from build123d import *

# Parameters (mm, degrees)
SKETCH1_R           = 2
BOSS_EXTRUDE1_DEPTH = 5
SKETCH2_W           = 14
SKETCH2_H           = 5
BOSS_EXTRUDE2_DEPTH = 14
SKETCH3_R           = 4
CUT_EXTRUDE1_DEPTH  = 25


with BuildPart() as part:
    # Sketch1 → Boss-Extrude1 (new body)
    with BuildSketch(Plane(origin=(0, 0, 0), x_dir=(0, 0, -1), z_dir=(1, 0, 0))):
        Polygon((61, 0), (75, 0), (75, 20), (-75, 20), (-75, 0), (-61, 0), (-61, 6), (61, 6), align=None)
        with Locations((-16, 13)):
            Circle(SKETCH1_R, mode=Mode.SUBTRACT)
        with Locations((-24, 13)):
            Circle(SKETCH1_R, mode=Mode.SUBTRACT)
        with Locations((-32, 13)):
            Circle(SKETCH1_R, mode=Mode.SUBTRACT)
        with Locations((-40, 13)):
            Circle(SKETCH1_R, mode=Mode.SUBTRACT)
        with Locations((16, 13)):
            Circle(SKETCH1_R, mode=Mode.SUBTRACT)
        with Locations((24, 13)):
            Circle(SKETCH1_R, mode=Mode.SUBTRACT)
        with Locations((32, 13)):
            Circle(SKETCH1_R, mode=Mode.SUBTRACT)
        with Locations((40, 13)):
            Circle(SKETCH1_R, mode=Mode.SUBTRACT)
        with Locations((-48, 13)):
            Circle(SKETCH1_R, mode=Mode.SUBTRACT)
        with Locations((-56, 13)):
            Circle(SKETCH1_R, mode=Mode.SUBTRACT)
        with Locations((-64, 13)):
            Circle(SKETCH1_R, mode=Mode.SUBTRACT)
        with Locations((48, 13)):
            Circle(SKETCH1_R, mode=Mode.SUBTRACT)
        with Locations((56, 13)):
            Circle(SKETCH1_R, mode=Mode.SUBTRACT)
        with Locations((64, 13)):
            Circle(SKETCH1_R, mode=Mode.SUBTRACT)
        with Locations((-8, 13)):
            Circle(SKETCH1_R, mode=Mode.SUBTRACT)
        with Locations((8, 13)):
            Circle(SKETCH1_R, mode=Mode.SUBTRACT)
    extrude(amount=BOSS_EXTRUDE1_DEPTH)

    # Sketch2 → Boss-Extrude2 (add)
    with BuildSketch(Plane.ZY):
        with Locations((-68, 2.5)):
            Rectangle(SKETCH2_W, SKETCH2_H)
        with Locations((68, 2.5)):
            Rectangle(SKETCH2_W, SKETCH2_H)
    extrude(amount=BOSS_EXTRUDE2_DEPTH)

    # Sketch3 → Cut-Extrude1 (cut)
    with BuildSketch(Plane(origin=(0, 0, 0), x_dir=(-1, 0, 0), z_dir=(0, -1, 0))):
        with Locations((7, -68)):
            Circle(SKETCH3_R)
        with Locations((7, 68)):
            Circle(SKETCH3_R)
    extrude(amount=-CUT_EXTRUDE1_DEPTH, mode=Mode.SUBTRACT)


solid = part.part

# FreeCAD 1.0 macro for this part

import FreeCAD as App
import Part
import Sketcher
Q = App.Units.Quantity


def add_polygon(sketch, points):
    """Adds a closed chain of lines whose ends are joined by coincident constraints."""
    first, n = sketch.GeometryCount, len(points)
    for a, b in zip(points, points[1:] + points[:1]):
        sketch.addGeometry(Part.LineSegment(App.Vector(*a, 0), App.Vector(*b, 0)), False)
    for i in range(n):
        sketch.addConstraint(Sketcher.Constraint("Coincident", first + i, 2, first + (i + 1) % n, 1))

doc = App.newDocument("Part")
body = doc.addObject("PartDesign::Body", "Body")

sketch1 = body.newObject("Sketcher::SketchObject", "Sketch")
sketch1.AttachmentSupport = (doc.getObject("YZ_Plane"), [""])
sketch1.MapMode = "FlatFace"
add_polygon(sketch1, [(0, -61), (0, -75), (20, -75), (20, 75), (0, 75), (0, 61), (6, 61), (6, -61)])
sketch1.addGeometry(Part.Circle(App.Vector(13, 64, 0), App.Vector(0, 0, 1), 2), False)
sketch1.addGeometry(Part.Circle(App.Vector(13, 56, 0), App.Vector(0, 0, 1), 2), False)
sketch1.addGeometry(Part.Circle(App.Vector(13, 48, 0), App.Vector(0, 0, 1), 2), False)
sketch1.addGeometry(Part.Circle(App.Vector(13, 40, 0), App.Vector(0, 0, 1), 2), False)
sketch1.addGeometry(Part.Circle(App.Vector(13, 32, 0), App.Vector(0, 0, 1), 2), False)
sketch1.addGeometry(Part.Circle(App.Vector(13, 24, 0), App.Vector(0, 0, 1), 2), False)
sketch1.addGeometry(Part.Circle(App.Vector(13, 16, 0), App.Vector(0, 0, 1), 2), False)
sketch1.addGeometry(Part.Circle(App.Vector(13, 8, 0), App.Vector(0, 0, 1), 2), False)
sketch1.addGeometry(Part.Circle(App.Vector(13, -8, 0), App.Vector(0, 0, 1), 2), False)
sketch1.addGeometry(Part.Circle(App.Vector(13, -16, 0), App.Vector(0, 0, 1), 2), False)
sketch1.addGeometry(Part.Circle(App.Vector(13, -24, 0), App.Vector(0, 0, 1), 2), False)
sketch1.addGeometry(Part.Circle(App.Vector(13, -32, 0), App.Vector(0, 0, 1), 2), False)
sketch1.addGeometry(Part.Circle(App.Vector(13, -40, 0), App.Vector(0, 0, 1), 2), False)
sketch1.addGeometry(Part.Circle(App.Vector(13, -48, 0), App.Vector(0, 0, 1), 2), False)
sketch1.addGeometry(Part.Circle(App.Vector(13, -56, 0), App.Vector(0, 0, 1), 2), False)
sketch1.addGeometry(Part.Circle(App.Vector(13, -64, 0), App.Vector(0, 0, 1), 2), False)
sketch1.addConstraint([
    Sketcher.Constraint("Vertical", 0),
    Sketcher.Constraint("Horizontal", 1),
    Sketcher.Constraint("Vertical", 2),
    Sketcher.Constraint("Horizontal", 3),
    Sketcher.Constraint("Vertical", 4),
    Sketcher.Constraint("Horizontal", 5),
    Sketcher.Constraint("Vertical", 6),
    Sketcher.Constraint("Horizontal", 7),
    Sketcher.Constraint("Equal", 8, 9),
    Sketcher.Constraint("Equal", 9, 10),
    Sketcher.Constraint("Equal", 10, 11),
    Sketcher.Constraint("Equal", 11, 12),
    Sketcher.Constraint("Equal", 12, 13),
    Sketcher.Constraint("Equal", 13, 14),
    Sketcher.Constraint("Equal", 14, 15),
    Sketcher.Constraint("Equal", 15, 16),
    Sketcher.Constraint("Equal", 16, 17),
    Sketcher.Constraint("Equal", 17, 18),
    Sketcher.Constraint("Equal", 18, 19),
    Sketcher.Constraint("Equal", 19, 20),
    Sketcher.Constraint("Equal", 20, 21),
    Sketcher.Constraint("Equal", 21, 22),
    Sketcher.Constraint("Equal", 22, 23),
    Sketcher.Constraint("Symmetric", 0, 2, 3, 2, -1, 1),
    Sketcher.Constraint("Symmetric", 15, 3, 16, 3, -1),
    Sketcher.Constraint("Symmetric", 14, 3, 17, 3, -1),
    Sketcher.Constraint("Symmetric", 13, 3, 18, 3, -1),
    Sketcher.Constraint("Symmetric", 12, 3, 19, 3, -1),
    Sketcher.Constraint("Symmetric", 11, 3, 20, 3, -1),
    Sketcher.Constraint("Symmetric", 10, 3, 21, 3, -1),
    Sketcher.Constraint("Symmetric", 9, 3, 22, 3, -1),
    Sketcher.Constraint("Symmetric", 8, 3, 23, 3, -1),
    Sketcher.Constraint("Symmetric", 4, 2, 7, 2, -1),
    Sketcher.Constraint("Vertical", 8, 3, 9, 3),
    Sketcher.Constraint("Vertical", 9, 3, 10, 3),
    Sketcher.Constraint("Vertical", 10, 3, 11, 3),
    Sketcher.Constraint("Vertical", 11, 3, 12, 3),
    Sketcher.Constraint("Vertical", 12, 3, 13, 3),
    Sketcher.Constraint("Vertical", 13, 3, 14, 3),
    Sketcher.Constraint("Vertical", 14, 3, 15, 3),
    Sketcher.Constraint("Diameter", 8, Q("4 mm")),
    Sketcher.Constraint("DistanceX", 1, 1, 1, 2, Q("20 mm")),
    Sketcher.Constraint("DistanceX", 5, 1, 5, 2, Q("6 mm")),
    Sketcher.Constraint("DistanceY", 0, 2, 0, 1, Q("14 mm")),
    Sketcher.Constraint("DistanceY", 2, 1, 2, 2, Q("150 mm")),
    Sketcher.Constraint("DistanceX", -1, 1, 8, 3, Q("13 mm")),
    Sketcher.Constraint("DistanceY", -1, 1, 8, 3, Q("64 mm")),
    Sketcher.Constraint("DistanceY", -1, 1, 9, 3, Q("56 mm")),
    Sketcher.Constraint("DistanceY", -1, 1, 10, 3, Q("48 mm")),
    Sketcher.Constraint("DistanceY", -1, 1, 11, 3, Q("40 mm")),
    Sketcher.Constraint("DistanceY", -1, 1, 12, 3, Q("32 mm")),
    Sketcher.Constraint("DistanceY", -1, 1, 13, 3, Q("24 mm")),
    Sketcher.Constraint("DistanceY", -1, 1, 14, 3, Q("16 mm")),
    Sketcher.Constraint("DistanceY", -1, 1, 15, 3, Q("8 mm")),
])
pad1 = body.newObject("PartDesign::Pad", "Pad")
pad1.Profile = sketch1
pad1.Length = 5

sketch2 = body.newObject("Sketcher::SketchObject", "Sketch001")
sketch2.AttachmentSupport = (doc.getObject("YZ_Plane"), [""])
sketch2.MapMode = "FlatFace"
add_polygon(sketch2, [(5, -75), (0, -75), (0, -61), (5, -61)])
add_polygon(sketch2, [(5, 61), (0, 61), (0, 75), (5, 75)])
sketch2.addConstraint([
    Sketcher.Constraint("Horizontal", 0),
    Sketcher.Constraint("Vertical", 1),
    Sketcher.Constraint("Horizontal", 2),
    Sketcher.Constraint("Vertical", 3),
    Sketcher.Constraint("Horizontal", 4),
    Sketcher.Constraint("Vertical", 5),
    Sketcher.Constraint("Horizontal", 6),
    Sketcher.Constraint("Vertical", 7),
    Sketcher.Constraint("Symmetric", 1, 2, 4, 2, -1, 1),
    Sketcher.Constraint("Symmetric", 0, 2, 5, 2, -1),
    Sketcher.Constraint("Vertical", 3, 2, 6, 2),
    Sketcher.Constraint("DistanceX", 0, 2, 0, 1, Q("5 mm")),
    Sketcher.Constraint("DistanceY", 1, 1, 1, 2, Q("14 mm")),
    Sketcher.Constraint("DistanceY", 0, 2, -1, 1, Q("75 mm")),
])
pad2 = body.newObject("PartDesign::Pad", "Pad001")
pad2.Profile = sketch2
pad2.Length = 14
pad2.Reversed = True

sketch3 = body.newObject("Sketcher::SketchObject", "Sketch002")
sketch3.AttachmentSupport = (doc.getObject("XZ_Plane"), [""])
sketch3.MapMode = "FlatFace"
sketch3.addGeometry([
    Part.Circle(App.Vector(-7, 68, 0), App.Vector(0, 0, 1), 4),
    Part.Circle(App.Vector(-7, -68, 0), App.Vector(0, 0, 1), 4),
], False)
sketch3.addConstraint([
    Sketcher.Constraint("Equal", 0, 1),
    Sketcher.Constraint("Symmetric", 0, 3, 1, 3, -1),
    Sketcher.Constraint("Diameter", 0, Q("8 mm")),
    Sketcher.Constraint("DistanceX", 0, 3, -1, 1, Q("7 mm")),
    Sketcher.Constraint("DistanceY", -1, 1, 0, 3, Q("68 mm")),
])
pocket1 = body.newObject("PartDesign::Pocket", "Pocket")
pocket1.Profile = sketch3
pocket1.Length = 25

doc.recompute()
